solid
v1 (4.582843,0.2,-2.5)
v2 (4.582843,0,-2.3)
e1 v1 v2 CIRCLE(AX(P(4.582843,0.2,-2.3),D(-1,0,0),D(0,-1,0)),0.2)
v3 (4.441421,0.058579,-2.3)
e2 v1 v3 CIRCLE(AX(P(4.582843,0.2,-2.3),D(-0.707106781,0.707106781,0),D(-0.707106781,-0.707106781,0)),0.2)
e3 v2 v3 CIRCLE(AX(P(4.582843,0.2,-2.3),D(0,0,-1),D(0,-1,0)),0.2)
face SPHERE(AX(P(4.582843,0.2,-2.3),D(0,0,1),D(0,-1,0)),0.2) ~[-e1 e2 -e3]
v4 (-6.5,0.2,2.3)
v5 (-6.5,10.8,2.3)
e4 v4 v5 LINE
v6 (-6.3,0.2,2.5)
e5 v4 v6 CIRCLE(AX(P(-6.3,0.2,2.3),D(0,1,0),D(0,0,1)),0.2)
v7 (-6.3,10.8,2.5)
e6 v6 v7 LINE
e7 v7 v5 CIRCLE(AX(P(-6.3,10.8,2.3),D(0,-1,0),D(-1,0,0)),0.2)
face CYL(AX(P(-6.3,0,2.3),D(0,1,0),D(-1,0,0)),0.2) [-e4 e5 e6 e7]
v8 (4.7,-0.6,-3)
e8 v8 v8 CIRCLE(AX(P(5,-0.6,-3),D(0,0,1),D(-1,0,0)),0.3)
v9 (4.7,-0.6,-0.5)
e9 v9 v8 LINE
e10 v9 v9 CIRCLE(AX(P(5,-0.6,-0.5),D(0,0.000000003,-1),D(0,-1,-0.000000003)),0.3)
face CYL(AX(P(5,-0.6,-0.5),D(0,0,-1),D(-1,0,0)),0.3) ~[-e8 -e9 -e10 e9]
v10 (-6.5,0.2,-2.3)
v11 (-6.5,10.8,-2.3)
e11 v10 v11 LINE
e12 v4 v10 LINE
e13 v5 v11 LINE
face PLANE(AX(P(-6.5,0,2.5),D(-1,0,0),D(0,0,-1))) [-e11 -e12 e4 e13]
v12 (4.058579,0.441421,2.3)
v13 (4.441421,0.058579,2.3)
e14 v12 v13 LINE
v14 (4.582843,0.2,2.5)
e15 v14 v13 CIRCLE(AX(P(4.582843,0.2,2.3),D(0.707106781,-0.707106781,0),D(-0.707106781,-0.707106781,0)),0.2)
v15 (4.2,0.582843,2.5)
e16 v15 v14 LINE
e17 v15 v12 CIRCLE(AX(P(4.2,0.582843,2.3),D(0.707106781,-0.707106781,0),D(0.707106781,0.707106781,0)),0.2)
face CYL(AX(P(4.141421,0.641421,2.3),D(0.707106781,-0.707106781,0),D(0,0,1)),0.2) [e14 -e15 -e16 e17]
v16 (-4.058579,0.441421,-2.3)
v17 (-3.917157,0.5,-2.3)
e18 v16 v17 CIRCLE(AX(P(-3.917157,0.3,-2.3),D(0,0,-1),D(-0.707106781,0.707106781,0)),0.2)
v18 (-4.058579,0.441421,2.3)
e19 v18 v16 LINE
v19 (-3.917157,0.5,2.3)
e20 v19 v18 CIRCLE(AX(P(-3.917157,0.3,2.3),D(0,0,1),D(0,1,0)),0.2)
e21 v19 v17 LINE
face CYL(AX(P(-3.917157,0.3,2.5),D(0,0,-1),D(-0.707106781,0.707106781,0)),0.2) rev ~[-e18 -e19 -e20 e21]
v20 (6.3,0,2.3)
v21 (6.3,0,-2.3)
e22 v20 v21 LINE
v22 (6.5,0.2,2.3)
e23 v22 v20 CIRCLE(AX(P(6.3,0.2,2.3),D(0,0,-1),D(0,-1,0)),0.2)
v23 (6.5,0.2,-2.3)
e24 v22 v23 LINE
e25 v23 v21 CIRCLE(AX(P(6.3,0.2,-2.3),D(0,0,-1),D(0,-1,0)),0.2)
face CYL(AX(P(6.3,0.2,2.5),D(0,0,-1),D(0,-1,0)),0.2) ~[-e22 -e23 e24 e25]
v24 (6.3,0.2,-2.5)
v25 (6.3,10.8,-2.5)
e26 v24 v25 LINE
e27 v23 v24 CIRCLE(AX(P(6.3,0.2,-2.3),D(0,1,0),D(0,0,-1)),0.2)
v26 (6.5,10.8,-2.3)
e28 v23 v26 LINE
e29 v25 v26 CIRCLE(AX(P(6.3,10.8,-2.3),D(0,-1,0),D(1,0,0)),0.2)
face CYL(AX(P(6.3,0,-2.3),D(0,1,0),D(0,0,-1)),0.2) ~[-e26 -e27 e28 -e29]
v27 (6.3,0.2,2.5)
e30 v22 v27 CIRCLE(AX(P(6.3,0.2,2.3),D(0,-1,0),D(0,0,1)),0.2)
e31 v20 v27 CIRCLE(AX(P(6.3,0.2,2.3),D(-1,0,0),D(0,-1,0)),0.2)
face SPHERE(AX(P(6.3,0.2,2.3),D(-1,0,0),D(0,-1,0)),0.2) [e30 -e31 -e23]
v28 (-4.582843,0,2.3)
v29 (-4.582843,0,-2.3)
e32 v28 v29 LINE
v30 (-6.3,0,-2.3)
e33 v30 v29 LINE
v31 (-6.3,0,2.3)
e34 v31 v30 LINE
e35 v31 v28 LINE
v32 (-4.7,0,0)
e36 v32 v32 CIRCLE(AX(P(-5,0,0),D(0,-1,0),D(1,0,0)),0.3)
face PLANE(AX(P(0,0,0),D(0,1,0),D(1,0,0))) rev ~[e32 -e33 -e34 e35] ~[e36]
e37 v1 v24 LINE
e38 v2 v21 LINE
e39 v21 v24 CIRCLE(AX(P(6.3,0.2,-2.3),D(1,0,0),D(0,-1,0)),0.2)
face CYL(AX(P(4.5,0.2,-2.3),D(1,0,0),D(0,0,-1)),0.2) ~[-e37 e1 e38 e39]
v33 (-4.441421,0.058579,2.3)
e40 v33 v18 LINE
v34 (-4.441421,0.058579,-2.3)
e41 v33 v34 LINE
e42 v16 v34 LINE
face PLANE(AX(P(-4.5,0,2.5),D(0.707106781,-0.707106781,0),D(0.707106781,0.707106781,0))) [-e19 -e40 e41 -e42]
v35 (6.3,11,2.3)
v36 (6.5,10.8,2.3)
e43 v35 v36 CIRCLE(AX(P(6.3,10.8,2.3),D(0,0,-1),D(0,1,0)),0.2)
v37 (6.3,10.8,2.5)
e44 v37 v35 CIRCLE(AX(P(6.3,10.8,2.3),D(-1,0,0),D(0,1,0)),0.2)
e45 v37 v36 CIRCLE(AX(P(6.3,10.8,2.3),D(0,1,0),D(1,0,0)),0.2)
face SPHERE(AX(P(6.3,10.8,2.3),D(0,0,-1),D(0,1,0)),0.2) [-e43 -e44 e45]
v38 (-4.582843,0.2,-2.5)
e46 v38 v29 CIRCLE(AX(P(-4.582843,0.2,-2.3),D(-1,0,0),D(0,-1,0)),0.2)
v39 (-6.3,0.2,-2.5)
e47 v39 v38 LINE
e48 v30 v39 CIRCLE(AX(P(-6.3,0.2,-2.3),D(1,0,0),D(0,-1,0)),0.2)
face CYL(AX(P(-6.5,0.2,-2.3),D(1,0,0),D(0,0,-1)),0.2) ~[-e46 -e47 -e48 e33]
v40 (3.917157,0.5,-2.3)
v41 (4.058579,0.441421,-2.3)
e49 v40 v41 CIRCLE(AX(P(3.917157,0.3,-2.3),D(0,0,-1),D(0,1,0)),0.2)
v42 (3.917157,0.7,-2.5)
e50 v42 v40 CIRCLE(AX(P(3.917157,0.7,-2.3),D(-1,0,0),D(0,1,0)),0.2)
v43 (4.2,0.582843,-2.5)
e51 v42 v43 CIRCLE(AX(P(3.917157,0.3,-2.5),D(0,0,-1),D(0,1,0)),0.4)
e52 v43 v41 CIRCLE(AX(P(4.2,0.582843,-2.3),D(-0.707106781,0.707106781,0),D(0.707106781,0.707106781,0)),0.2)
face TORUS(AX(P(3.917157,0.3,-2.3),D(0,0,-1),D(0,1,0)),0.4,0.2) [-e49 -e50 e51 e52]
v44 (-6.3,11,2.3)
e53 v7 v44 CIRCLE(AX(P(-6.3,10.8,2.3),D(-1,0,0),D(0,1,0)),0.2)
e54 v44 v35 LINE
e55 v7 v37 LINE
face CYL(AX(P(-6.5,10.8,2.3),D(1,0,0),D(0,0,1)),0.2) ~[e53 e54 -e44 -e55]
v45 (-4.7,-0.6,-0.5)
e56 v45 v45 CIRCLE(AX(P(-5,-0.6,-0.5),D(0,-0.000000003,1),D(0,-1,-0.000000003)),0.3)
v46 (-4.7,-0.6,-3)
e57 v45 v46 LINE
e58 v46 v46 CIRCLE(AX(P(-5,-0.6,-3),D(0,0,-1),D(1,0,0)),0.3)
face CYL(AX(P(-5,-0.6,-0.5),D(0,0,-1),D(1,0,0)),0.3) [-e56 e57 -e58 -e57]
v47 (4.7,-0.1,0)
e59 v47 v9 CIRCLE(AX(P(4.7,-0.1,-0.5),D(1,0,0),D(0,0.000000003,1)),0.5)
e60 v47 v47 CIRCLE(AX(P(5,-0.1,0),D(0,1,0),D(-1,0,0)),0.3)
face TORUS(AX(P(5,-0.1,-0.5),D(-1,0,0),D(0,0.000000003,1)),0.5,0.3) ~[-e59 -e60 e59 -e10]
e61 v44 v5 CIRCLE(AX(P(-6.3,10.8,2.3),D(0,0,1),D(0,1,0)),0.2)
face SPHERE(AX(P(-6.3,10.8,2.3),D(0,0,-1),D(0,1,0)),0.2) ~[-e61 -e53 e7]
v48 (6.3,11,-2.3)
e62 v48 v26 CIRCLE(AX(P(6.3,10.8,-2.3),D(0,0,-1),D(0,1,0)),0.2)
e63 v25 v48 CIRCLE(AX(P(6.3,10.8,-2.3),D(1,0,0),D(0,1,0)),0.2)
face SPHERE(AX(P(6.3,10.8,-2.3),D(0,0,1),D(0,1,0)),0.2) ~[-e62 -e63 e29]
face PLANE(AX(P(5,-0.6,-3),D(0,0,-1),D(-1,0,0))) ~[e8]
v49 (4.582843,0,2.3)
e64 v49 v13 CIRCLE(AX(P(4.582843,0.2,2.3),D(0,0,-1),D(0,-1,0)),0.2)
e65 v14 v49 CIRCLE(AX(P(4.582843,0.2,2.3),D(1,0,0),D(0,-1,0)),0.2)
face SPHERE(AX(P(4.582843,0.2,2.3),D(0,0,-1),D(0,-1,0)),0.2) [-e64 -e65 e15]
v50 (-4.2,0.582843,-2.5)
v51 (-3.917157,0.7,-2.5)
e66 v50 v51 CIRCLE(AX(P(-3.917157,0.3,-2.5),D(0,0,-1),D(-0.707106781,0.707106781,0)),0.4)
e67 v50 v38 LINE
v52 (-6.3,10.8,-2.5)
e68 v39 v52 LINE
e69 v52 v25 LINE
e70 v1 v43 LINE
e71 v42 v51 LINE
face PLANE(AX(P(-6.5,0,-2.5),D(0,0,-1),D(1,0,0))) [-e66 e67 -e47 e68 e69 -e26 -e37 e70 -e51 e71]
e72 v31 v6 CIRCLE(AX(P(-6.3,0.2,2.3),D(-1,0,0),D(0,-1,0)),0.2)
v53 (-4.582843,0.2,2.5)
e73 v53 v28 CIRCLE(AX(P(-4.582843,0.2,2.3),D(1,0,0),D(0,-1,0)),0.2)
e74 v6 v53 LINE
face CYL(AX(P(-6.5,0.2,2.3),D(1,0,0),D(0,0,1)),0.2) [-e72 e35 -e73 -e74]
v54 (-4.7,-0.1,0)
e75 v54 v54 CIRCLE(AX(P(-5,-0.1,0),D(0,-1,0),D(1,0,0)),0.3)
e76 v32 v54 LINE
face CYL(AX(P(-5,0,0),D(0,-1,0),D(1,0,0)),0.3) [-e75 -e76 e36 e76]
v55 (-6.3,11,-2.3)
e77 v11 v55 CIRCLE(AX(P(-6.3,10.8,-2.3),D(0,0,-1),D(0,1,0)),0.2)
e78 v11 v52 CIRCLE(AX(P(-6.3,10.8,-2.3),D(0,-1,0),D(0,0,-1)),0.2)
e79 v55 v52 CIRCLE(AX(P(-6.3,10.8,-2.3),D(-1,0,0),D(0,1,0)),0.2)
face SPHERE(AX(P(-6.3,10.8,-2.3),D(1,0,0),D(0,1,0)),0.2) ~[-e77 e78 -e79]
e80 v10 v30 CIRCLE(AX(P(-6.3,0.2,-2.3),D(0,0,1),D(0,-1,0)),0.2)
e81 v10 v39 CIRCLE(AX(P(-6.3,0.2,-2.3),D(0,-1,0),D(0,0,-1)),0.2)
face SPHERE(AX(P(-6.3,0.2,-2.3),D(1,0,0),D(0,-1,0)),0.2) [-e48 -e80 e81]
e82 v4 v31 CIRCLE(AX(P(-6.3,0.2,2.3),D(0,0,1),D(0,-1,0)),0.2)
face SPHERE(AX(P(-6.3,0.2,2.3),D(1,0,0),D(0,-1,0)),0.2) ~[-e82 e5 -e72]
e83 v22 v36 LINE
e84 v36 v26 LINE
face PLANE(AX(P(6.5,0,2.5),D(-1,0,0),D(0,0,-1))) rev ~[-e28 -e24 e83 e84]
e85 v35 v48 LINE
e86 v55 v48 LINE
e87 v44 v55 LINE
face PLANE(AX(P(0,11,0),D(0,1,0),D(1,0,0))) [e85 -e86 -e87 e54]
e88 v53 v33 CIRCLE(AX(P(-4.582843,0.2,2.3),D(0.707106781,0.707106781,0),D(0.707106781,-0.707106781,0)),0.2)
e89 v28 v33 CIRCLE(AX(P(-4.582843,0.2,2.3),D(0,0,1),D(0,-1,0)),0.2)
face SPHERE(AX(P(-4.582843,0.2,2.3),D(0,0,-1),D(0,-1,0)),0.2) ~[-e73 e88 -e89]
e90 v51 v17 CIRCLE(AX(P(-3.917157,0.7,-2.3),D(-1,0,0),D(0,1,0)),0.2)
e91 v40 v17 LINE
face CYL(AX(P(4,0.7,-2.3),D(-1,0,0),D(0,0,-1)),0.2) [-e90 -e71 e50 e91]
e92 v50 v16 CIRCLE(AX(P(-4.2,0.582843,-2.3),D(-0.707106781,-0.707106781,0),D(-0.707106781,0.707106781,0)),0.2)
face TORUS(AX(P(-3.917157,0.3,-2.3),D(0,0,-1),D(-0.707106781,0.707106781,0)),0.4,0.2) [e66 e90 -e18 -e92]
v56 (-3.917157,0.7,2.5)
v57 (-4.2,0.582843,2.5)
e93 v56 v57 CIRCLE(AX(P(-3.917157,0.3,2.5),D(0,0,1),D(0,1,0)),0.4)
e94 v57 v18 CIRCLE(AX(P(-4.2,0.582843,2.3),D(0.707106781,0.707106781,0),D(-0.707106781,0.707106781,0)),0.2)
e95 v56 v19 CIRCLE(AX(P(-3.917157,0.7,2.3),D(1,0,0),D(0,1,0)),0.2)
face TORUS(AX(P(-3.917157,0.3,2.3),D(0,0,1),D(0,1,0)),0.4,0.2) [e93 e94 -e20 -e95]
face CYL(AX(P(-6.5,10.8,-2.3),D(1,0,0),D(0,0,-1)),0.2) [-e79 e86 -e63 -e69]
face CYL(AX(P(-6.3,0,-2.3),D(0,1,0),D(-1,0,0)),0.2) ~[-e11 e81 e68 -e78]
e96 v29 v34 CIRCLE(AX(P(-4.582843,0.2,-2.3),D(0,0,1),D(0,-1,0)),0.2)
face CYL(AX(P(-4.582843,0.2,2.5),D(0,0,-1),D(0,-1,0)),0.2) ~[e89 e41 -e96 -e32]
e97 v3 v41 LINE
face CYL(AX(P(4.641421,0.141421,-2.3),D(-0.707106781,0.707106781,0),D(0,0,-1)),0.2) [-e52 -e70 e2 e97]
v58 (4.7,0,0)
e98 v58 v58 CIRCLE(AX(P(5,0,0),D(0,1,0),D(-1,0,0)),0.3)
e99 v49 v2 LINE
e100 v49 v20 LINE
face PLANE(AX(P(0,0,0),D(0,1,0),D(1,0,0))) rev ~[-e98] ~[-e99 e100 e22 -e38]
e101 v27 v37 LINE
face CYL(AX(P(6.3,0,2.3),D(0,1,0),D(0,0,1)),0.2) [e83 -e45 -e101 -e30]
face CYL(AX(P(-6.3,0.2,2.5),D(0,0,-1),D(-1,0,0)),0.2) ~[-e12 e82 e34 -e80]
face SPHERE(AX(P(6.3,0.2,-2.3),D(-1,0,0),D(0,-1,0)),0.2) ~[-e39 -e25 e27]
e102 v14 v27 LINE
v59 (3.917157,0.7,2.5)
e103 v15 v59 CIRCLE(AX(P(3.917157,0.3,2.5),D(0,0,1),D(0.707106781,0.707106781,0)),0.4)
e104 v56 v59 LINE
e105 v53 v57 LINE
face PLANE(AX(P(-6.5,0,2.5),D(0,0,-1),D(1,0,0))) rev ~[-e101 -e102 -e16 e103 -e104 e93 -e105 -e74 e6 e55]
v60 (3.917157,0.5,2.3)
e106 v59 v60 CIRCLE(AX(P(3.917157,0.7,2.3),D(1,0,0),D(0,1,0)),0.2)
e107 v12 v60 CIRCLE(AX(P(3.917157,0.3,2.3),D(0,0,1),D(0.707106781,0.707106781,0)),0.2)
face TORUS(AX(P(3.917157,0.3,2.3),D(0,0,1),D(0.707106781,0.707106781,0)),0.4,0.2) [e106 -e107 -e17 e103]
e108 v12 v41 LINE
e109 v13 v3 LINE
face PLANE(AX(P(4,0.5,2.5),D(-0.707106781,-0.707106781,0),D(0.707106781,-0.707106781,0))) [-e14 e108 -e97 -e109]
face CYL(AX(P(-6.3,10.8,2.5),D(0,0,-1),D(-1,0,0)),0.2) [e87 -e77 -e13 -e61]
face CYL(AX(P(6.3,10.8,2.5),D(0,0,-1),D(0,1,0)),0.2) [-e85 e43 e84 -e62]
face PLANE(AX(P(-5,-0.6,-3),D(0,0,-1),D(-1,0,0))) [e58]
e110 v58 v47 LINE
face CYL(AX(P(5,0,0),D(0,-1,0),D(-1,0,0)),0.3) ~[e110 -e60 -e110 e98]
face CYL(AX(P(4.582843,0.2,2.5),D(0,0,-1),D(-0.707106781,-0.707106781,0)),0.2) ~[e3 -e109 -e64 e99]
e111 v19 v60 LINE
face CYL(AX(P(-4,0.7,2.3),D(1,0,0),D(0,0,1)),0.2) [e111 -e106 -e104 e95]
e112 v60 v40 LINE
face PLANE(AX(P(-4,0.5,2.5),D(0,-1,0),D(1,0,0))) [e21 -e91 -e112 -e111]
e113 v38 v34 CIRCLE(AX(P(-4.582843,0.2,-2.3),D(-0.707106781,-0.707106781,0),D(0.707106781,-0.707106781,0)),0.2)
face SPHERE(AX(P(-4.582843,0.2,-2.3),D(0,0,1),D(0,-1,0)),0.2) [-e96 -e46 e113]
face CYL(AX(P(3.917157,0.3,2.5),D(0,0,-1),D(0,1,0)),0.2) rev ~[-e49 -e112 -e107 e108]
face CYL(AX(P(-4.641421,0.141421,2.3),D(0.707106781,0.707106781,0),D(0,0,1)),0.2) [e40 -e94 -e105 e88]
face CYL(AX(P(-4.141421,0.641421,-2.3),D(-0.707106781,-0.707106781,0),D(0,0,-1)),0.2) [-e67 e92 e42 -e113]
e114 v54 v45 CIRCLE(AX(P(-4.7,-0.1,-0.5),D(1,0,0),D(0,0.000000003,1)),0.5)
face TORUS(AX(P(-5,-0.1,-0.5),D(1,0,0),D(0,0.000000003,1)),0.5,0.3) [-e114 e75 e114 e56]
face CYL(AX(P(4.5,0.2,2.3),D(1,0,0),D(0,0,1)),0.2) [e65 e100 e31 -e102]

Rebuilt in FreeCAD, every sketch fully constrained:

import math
import FreeCAD as App
import Part
import Sketcher

V = App.Vector


def add_polygon(sketch, points):
    """Adds a closed chain of lines whose ends are joined by coincident constraints."""
    first, n = sketch.GeometryCount, len(points)
    for a, b in zip(points, points[1:] + points[:1]):
        sketch.addGeometry(Part.LineSegment(App.Vector(*a, 0), App.Vector(*b, 0)), False)
    for i in range(n):
        sketch.addConstraint(Sketcher.Constraint("Coincident", first + i, 2, first + (i + 1) % n, 1))

doc = App.newDocument("Part")
body = doc.addObject("PartDesign::Body", "Body")

sketch1 = body.newObject("Sketcher::SketchObject", "Sketch")
sketch1.AttachmentSupport = (doc.getObject("XZ_Plane"), [""])
sketch1.MapMode = "FlatFace"
add_polygon(sketch1, [(-6, -2), (-6, 2), (6, 2), (6, -2)])
sketch1.addConstraint(Sketcher.Constraint("Vertical", 0))
sketch1.addConstraint(Sketcher.Constraint("Horizontal", 1))
sketch1.addConstraint(Sketcher.Constraint("Vertical", 2))
sketch1.addConstraint(Sketcher.Constraint("Horizontal", 3))
sketch1.addConstraint(Sketcher.Constraint("Symmetric", 0, 2, 2, 2, -1, 1))
sketch1.addConstraint(Sketcher.Constraint("DistanceX", 1, 1, 1, 2, 13.0))
sketch1.addConstraint(Sketcher.Constraint("DistanceY", 0, 1, 0, 2, 5.0))
pad1 = body.newObject("PartDesign::Pad", "Pad")
pad1.Profile = sketch1
pad1.Length = 11
pad1.Reversed = True

sketch2 = body.newObject("Sketcher::SketchObject", "Sketch001")
sketch2.AttachmentSupport = (doc.getObject("XY_Plane"), [""])
sketch2.MapMode = "FlatFace"
sketch2.AttachmentOffset = App.Placement(V(0, 0, 2.5), App.Rotation())
add_polygon(sketch2, [(-4, 0.5), (-4.5, 0), (-4.5, -1.5), (4.5, -1.5), (4.5, 0), (4, 0.5)])
sketch2.addConstraint(Sketcher.Constraint("Vertical", 1))
sketch2.addConstraint(Sketcher.Constraint("Horizontal", 2))
sketch2.addConstraint(Sketcher.Constraint("Vertical", 3))
sketch2.addConstraint(Sketcher.Constraint("Horizontal", 5))
sketch2.addConstraint(Sketcher.Constraint("Symmetric", 0, 2, 3, 2, -1, 1))
sketch2.addConstraint(Sketcher.Constraint("PointOnObject", 0, 2, -1))
sketch2.addConstraint(Sketcher.Constraint("Perpendicular", 0, 4))
sketch2.addConstraint(Sketcher.Constraint("Equal", 0, 4))
sketch2.addConstraint(Sketcher.Constraint("DistanceX", 2, 1, 2, 2, 9.0))
sketch2.addConstraint(Sketcher.Constraint("DistanceX", 5, 2, 5, 1, 8.0))
sketch2.addConstraint(Sketcher.Constraint("DistanceY", 1, 2, 1, 1, 1.5))
pocket1 = body.newObject("PartDesign::Pocket", "Pocket")
pocket1.Profile = sketch2
pocket1.Type = "ThroughAll"
doc.recompute()

fillet = body.newObject("PartDesign::Fillet", "Fillet")
fillet.Base = (pocket1, ["Edge1"])
fillet.UseAllEdges = True
fillet.Radius = 0.2

sketch3 = body.newObject("Sketcher::SketchObject", "Sketch002")
sketch3.AttachmentSupport = (doc.getObject("XZ_Plane"), [""])
sketch3.MapMode = "FlatFace"
sketch3.addGeometry(Part.Circle(V(-5, 0, 0), V(0, 0, 1), 0.3), False)
sketch3.addConstraint(Sketcher.Constraint("PointOnObject", 0, 3, -1))
sketch3.addConstraint(Sketcher.Constraint("Diameter", 0, 0.6))
sketch3.addConstraint(Sketcher.Constraint("DistanceX", 0, 3, -1, 1, 5.0))

sketch4 = body.newObject("Sketcher::SketchObject", "Sketch003")
sketch4.AttachmentSupport = (doc.getObject("YZ_Plane"), [""])
sketch4.MapMode = "FlatFace"
sketch4.AttachmentOffset = App.Placement(V(0, 0, -5), App.Rotation())
sketch4.addGeometry(Part.LineSegment(V(0, 0, 0), V(-0.1, 0, 0)), False)
sketch4.addGeometry(Part.ArcOfCircle(Part.Circle(V(-0.1, -0.5, 0), V(0, 0, 1), 0.5), math.radians(90), math.radians(180)), False)
sketch4.addGeometry(Part.LineSegment(V(-0.6, -0.5, 0), V(-0.6, -3, 0)), False)
sketch4.addConstraint(Sketcher.Constraint("Tangent", 0, 2, 1, 1))
sketch4.addConstraint(Sketcher.Constraint("Tangent", 1, 2, 2, 1))
sketch4.addConstraint(Sketcher.Constraint("Horizontal", 0))
sketch4.addConstraint(Sketcher.Constraint("Vertical", 2))
sketch4.addConstraint(Sketcher.Constraint("Coincident", 0, 1, -1, 1))
sketch4.addConstraint(Sketcher.Constraint("Radius", 1, 0.5))
sketch4.addConstraint(Sketcher.Constraint("DistanceX", 0, 2, 0, 1, 0.1))
sketch4.addConstraint(Sketcher.Constraint("DistanceY", 2, 2, 2, 1, 2.5))
doc.recompute()

additivepipe = body.newObject("PartDesign::AdditivePipe", "AdditivePipe")
additivepipe.Profile = sketch3
additivepipe.Spine = (sketch4, ["Edge1", "Edge2", "Edge3"])
doc.recompute()

mirrored = body.newObject("PartDesign::Mirrored", "Mirrored")
mirrored.Originals = [additivepipe]
mirrored.MirrorPlane = (doc.getObject("YZ_Plane"), [""])
body.Tip = mirrored

doc.recompute()
